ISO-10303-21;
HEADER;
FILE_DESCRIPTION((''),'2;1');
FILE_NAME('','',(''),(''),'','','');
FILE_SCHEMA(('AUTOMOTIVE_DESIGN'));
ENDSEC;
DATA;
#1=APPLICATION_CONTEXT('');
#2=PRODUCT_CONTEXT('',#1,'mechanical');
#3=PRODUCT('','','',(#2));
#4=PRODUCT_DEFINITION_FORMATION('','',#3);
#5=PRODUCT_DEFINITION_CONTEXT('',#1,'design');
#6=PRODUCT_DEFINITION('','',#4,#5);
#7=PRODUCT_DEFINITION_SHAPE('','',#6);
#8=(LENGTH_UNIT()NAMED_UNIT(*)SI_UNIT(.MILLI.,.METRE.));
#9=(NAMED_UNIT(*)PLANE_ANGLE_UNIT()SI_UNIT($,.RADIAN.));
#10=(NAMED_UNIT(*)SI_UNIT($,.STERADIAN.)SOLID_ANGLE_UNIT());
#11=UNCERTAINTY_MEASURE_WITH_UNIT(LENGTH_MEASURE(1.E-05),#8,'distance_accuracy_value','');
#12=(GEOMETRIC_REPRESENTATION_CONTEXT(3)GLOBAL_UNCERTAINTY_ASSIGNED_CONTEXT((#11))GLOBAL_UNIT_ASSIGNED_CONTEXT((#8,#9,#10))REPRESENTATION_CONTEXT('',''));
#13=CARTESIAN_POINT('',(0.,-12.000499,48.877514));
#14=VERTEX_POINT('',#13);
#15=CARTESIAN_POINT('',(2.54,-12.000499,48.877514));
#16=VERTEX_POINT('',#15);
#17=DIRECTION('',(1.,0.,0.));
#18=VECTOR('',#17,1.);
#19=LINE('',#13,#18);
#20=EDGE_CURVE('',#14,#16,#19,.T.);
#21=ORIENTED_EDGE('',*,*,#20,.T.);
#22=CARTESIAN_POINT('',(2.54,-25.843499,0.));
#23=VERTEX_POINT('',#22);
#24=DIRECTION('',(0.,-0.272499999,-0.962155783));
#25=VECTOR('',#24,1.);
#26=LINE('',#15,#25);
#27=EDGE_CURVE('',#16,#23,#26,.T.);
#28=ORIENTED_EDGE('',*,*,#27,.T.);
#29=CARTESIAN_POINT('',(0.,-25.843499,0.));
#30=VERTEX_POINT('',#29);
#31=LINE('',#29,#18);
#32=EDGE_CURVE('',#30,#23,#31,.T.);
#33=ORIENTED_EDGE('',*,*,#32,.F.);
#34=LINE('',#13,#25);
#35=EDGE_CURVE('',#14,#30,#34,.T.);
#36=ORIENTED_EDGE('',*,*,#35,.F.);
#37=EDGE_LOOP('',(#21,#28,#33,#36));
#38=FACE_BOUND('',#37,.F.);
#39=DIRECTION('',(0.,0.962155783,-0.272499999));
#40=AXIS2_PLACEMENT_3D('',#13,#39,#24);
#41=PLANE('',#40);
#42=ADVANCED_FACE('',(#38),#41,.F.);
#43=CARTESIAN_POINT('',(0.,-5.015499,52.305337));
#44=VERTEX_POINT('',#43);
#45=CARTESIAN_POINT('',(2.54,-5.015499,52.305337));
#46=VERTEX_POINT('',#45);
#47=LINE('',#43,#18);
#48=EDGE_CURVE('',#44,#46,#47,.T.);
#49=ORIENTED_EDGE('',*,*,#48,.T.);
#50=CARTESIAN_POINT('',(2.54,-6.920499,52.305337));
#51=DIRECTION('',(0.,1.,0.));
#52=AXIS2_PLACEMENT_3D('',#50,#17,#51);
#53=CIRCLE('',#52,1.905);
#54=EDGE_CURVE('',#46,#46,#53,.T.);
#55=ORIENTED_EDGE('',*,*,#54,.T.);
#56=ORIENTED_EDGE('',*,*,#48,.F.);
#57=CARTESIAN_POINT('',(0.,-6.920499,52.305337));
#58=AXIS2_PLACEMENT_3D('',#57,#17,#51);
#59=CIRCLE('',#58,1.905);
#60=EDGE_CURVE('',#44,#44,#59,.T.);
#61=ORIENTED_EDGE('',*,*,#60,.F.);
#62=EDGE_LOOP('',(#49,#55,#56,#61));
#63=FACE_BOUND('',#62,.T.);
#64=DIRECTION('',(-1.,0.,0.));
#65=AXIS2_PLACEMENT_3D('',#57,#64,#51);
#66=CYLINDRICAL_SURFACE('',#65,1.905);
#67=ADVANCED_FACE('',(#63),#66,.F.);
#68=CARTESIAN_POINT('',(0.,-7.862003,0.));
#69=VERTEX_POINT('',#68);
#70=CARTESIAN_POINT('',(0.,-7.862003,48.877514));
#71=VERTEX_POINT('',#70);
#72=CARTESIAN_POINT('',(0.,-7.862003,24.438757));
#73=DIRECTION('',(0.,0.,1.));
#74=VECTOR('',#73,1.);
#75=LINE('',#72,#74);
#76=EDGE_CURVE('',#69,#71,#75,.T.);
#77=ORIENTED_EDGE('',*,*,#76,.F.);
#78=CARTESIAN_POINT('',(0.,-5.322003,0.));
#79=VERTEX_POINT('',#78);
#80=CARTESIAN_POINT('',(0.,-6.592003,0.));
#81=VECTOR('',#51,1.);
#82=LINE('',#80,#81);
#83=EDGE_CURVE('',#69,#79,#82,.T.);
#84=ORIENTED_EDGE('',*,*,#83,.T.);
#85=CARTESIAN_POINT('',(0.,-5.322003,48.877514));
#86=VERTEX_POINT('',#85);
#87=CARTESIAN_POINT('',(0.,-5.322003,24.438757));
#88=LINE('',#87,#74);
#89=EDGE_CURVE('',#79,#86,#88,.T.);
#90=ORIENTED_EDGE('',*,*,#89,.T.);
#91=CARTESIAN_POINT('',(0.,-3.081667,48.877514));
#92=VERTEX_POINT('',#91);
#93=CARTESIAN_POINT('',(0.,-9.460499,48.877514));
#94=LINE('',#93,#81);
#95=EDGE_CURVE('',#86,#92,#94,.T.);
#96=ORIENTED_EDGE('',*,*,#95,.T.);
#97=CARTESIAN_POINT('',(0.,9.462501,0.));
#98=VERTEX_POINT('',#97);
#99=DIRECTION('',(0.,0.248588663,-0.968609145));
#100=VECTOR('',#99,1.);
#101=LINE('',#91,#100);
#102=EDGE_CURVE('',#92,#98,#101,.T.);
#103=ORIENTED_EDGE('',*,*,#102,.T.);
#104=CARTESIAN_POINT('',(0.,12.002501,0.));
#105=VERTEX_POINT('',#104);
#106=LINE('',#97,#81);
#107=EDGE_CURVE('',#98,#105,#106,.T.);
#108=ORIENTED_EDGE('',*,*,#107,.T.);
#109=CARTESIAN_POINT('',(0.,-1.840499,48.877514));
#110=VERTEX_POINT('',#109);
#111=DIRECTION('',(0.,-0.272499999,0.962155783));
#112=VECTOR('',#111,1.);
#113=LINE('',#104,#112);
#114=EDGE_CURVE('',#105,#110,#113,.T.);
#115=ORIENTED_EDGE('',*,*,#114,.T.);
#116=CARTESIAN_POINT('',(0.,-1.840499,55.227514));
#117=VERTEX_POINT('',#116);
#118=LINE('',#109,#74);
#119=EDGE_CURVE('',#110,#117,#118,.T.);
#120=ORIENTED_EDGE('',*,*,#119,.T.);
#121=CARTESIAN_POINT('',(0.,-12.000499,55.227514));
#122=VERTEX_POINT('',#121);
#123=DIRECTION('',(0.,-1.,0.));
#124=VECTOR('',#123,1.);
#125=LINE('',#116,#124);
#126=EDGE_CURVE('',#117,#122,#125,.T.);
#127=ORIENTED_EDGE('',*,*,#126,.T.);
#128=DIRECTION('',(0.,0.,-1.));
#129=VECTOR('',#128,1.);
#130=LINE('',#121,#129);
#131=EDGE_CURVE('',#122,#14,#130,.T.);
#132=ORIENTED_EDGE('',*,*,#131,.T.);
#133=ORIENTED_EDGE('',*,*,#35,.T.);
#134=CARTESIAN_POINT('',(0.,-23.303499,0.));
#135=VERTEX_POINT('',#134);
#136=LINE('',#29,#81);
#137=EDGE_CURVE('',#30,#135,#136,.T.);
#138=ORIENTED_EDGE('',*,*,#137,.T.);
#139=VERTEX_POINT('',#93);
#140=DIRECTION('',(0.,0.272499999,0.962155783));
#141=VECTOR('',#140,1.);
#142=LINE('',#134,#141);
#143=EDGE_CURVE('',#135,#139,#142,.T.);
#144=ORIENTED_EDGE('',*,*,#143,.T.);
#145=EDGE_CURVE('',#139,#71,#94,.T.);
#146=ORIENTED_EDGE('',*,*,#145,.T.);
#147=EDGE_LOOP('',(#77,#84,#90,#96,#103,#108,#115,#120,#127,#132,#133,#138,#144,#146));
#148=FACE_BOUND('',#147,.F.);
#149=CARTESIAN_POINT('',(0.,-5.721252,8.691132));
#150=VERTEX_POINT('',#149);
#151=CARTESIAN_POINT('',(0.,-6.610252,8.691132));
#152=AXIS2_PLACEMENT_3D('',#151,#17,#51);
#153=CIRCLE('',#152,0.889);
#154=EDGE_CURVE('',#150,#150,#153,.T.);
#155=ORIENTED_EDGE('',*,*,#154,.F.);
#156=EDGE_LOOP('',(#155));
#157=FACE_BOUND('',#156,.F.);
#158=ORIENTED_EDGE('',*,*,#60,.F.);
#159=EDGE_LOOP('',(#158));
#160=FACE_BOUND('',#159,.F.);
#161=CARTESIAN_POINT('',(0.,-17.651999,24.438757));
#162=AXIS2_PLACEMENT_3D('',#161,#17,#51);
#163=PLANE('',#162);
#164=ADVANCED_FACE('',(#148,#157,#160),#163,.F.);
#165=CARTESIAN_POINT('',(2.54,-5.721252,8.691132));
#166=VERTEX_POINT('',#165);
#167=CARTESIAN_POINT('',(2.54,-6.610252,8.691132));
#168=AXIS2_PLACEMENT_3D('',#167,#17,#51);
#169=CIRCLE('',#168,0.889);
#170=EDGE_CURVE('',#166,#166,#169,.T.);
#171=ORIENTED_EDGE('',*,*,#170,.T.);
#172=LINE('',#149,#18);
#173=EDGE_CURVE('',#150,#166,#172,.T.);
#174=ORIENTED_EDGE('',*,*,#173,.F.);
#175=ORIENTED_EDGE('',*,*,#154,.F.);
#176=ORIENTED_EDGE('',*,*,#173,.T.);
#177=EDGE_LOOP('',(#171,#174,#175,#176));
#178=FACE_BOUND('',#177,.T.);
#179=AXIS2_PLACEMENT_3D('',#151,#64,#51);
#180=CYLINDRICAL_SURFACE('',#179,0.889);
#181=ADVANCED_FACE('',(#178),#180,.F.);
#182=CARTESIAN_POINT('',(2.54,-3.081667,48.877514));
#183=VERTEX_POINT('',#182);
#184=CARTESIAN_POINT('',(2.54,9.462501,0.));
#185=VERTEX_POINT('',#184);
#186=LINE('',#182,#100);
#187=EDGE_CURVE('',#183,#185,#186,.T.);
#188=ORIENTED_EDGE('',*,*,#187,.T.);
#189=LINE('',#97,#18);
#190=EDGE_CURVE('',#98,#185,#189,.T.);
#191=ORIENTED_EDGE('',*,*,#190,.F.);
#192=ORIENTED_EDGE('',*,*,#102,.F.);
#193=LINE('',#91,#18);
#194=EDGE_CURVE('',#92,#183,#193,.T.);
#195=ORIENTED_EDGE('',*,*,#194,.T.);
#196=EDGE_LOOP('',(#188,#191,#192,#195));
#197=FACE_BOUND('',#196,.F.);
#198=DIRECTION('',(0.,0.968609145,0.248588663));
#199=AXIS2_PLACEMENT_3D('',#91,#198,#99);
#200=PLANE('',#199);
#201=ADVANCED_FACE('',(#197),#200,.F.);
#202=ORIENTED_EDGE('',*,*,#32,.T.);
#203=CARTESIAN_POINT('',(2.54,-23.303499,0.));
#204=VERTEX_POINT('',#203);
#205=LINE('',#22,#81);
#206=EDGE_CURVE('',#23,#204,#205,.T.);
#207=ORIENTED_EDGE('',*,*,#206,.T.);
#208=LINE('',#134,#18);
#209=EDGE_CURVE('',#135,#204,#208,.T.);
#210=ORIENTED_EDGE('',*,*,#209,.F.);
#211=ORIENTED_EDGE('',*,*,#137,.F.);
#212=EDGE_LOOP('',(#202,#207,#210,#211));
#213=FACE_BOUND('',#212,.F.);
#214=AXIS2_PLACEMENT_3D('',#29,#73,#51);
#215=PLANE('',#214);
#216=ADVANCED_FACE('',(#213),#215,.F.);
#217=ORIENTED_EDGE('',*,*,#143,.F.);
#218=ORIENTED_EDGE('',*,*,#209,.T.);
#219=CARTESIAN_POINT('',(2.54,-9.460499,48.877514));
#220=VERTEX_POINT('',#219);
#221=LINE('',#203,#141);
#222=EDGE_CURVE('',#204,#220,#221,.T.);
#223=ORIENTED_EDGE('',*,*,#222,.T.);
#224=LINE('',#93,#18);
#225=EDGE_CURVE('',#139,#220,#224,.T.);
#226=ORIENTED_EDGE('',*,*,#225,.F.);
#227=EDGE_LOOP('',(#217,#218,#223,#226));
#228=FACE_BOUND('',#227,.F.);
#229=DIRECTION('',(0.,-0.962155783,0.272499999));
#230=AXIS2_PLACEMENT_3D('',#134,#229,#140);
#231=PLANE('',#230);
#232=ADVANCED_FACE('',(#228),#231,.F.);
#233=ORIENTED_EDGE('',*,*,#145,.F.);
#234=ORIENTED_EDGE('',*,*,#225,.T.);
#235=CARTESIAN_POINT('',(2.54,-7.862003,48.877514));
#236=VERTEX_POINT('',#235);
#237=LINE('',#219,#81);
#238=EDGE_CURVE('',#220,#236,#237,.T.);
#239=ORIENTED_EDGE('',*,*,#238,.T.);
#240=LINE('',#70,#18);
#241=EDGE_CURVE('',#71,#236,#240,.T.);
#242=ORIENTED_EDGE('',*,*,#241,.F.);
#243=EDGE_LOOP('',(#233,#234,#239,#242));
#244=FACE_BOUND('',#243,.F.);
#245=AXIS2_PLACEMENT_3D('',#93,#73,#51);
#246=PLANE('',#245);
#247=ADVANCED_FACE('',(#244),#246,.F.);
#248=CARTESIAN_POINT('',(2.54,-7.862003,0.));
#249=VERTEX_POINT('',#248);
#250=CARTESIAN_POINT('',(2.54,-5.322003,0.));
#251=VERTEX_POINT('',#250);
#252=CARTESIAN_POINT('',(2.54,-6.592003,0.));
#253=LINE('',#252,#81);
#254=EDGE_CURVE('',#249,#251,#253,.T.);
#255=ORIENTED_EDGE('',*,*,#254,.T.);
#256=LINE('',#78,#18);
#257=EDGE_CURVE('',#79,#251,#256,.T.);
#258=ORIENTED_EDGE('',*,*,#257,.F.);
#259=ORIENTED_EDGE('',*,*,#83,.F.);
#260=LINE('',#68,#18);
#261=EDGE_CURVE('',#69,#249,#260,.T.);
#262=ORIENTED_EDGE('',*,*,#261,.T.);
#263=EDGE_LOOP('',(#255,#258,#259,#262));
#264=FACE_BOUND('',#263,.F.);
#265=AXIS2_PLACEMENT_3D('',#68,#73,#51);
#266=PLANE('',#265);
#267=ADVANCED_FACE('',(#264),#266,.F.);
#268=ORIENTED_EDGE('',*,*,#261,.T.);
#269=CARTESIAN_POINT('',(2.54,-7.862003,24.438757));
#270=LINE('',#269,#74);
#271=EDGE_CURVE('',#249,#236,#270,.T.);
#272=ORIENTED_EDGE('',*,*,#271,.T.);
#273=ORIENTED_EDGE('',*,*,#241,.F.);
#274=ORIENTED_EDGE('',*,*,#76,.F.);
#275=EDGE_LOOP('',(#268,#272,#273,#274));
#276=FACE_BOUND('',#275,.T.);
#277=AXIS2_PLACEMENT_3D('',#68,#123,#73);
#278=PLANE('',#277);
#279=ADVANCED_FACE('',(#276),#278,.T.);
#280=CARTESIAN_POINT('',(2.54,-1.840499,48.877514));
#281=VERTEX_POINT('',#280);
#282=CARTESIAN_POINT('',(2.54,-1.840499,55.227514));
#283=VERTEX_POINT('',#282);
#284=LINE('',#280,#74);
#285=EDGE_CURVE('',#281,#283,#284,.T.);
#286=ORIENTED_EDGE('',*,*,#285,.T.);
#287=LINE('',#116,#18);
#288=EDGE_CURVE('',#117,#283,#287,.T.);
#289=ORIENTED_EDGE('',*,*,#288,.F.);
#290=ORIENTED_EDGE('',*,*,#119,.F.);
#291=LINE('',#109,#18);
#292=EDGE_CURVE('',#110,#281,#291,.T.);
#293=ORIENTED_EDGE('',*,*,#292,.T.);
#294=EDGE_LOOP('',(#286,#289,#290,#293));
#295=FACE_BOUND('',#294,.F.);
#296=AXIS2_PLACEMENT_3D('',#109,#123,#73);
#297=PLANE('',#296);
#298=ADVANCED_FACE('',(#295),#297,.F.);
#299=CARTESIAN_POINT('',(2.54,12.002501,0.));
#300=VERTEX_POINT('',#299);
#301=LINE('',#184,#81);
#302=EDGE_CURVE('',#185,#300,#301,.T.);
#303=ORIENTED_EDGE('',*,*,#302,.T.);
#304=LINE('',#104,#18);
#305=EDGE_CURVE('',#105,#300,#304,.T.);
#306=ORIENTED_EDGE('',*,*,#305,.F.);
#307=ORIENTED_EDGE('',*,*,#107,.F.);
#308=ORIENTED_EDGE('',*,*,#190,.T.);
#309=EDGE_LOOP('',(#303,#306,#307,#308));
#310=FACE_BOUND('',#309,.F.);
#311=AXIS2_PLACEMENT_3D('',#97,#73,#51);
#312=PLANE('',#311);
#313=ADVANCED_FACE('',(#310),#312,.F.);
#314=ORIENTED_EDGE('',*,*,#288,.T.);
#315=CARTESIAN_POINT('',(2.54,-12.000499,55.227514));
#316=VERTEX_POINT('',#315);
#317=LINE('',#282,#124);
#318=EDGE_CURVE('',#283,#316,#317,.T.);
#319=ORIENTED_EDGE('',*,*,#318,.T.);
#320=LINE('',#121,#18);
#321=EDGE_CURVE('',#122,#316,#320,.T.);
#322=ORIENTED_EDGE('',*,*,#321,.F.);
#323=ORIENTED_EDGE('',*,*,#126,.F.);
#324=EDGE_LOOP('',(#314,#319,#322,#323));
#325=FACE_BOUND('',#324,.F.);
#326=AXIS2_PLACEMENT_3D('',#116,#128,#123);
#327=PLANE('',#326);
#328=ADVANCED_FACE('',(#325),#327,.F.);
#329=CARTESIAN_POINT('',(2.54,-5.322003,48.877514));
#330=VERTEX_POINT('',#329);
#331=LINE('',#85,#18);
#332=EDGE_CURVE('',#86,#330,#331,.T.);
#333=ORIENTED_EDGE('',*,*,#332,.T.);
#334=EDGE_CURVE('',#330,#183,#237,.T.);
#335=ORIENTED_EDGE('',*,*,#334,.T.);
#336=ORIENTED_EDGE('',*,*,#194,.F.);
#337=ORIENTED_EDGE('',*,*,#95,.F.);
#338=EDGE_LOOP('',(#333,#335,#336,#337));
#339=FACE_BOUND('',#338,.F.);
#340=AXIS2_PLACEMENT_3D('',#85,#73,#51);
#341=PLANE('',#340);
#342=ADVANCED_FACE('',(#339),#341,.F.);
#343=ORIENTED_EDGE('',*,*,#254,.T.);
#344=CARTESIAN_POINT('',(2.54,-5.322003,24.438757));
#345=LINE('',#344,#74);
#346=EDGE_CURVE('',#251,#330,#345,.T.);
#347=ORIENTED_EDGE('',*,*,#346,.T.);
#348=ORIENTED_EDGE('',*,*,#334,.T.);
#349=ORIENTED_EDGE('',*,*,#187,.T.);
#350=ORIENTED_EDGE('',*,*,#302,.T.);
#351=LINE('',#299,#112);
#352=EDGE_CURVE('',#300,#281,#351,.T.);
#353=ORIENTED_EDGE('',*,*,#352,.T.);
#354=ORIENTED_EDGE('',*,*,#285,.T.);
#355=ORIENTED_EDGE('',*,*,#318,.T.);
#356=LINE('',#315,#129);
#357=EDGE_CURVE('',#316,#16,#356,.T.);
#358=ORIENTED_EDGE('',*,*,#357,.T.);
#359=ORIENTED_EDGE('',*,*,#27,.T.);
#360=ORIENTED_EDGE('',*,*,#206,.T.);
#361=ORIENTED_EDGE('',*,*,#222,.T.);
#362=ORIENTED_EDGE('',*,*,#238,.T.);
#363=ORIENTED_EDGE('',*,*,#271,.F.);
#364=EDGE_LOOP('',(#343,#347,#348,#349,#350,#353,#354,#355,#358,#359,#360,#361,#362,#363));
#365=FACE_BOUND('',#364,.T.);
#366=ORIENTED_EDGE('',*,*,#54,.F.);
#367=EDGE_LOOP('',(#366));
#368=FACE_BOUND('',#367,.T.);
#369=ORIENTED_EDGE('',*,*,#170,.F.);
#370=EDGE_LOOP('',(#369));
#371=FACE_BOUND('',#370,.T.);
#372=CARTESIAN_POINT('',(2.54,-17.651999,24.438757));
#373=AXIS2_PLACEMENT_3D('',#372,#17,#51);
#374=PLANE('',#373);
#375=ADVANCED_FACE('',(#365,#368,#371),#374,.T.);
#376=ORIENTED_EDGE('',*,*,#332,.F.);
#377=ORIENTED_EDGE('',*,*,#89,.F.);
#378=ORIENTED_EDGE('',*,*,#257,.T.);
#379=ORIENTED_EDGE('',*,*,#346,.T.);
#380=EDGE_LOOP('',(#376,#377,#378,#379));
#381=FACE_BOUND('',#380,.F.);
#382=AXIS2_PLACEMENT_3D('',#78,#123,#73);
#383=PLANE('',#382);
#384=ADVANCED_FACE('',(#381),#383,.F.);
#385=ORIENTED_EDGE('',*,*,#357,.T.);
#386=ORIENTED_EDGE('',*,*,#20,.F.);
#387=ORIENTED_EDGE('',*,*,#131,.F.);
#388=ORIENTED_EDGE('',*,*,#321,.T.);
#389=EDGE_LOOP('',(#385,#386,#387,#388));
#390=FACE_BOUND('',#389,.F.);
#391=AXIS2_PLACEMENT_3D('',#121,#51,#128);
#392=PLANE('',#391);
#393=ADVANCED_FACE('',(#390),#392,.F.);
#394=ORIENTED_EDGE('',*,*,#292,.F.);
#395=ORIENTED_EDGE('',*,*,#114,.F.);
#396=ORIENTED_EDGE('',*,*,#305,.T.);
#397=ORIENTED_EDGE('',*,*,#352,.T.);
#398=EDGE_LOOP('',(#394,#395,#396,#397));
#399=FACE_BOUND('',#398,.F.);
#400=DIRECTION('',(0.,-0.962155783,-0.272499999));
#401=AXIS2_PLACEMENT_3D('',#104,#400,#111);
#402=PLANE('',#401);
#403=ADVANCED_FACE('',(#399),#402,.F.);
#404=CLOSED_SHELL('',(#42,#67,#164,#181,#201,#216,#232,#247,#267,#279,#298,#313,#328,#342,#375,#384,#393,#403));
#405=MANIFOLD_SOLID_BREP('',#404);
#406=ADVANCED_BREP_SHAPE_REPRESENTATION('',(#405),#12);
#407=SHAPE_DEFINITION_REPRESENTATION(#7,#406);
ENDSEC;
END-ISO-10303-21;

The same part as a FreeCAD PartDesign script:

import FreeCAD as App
import Part
import Sketcher
from FreeCAD import Vector
Q = App.Units.Quantity


def add_polygon(sketch, points):
    """Adds a closed chain of lines whose ends are joined by coincident constraints."""
    first, n = sketch.GeometryCount, len(points)
    for a, b in zip(points, points[1:] + points[:1]):
        sketch.addGeometry(Part.LineSegment(App.Vector(*a, 0), App.Vector(*b, 0)), False)
    for i in range(n):
        sketch.addConstraint(Sketcher.Constraint("Coincident", first + i, 2, first + (i + 1) % n, 1))

doc = App.newDocument("Part")
body = doc.addObject("PartDesign::Body", "Body")

# Sketch on YZ plane
sketch1 = doc.addObject("Sketcher::SketchObject", "Sketch")
body.addObject(sketch1)
sketch1.AttachmentSupport = (doc.YZ_Plane, [""])
sketch1.MapMode = "FlatFace"
add_polygon(sketch1, [(-12.000499, 48.877514), (-25.843499, 0), (-23.303499, 0), (-9.460499, 48.877514), (-7.862003, 48.877514), (-7.862003, 0), (-5.322003, 0), (-5.322003, 48.877514), (-3.081667, 48.877514), (9.462501, 0), (12.002501, 0), (-1.840499, 48.877514), (-1.840499, 55.227514), (-12.000499, 55.227514)])  # lines 0-13
sketch1.addGeometry(Part.Circle(Vector(-6.610252, 8.691132, 0), Vector(0, 0, 1), 0.889), False)  # 14
sketch1.addGeometry(Part.Circle(Vector(-6.920499, 52.305337, 0), Vector(0, 0, 1), 1.905), False)  # 15
sketch1.addConstraint(Sketcher.Constraint("Horizontal", 1))
sketch1.addConstraint(Sketcher.Constraint("Horizontal", 3))
sketch1.addConstraint(Sketcher.Constraint("Vertical", 4))
sketch1.addConstraint(Sketcher.Constraint("Horizontal", 5))
sketch1.addConstraint(Sketcher.Constraint("Vertical", 6))
sketch1.addConstraint(Sketcher.Constraint("Horizontal", 7))
sketch1.addConstraint(Sketcher.Constraint("Horizontal", 9))
sketch1.addConstraint(Sketcher.Constraint("Vertical", 11))
sketch1.addConstraint(Sketcher.Constraint("Horizontal", 12))
sketch1.addConstraint(Sketcher.Constraint("Vertical", 13))
sketch1.addConstraint(Sketcher.Constraint("PointOnObject", 0, 2, -1))
sketch1.addConstraint(Sketcher.Constraint("PointOnObject", 4, 2, -1))
sketch1.addConstraint(Sketcher.Constraint("PointOnObject", 8, 2, -1))
sketch1.addConstraint(Sketcher.Constraint("Parallel", 0, 2))
sketch1.addConstraint(Sketcher.Constraint("Horizontal", 3, 2, 6, 2))
sketch1.addConstraint(Sketcher.Constraint("Horizontal", 7, 2, 10, 2))
sketch1.addConstraint(Sketcher.Constraint("Horizontal", 10, 2, 13, 2))
sketch1.addConstraint(Sketcher.Constraint("Equal", 1, 5))
sketch1.addConstraint(Sketcher.Constraint("Equal", 5, 9))
sketch1.addConstraint(Sketcher.Constraint("Equal", 2, 10))
sketch1.addConstraint(Sketcher.Constraint("Diameter", 14, Q("0.07 in")))
sketch1.addConstraint(Sketcher.Constraint("Diameter", 15, Q("0.15 in")))
sketch1.addConstraint(Sketcher.Constraint("Distance", 0, Q("2 in")))
sketch1.addConstraint(Sketcher.Constraint("DistanceX", 1, 1, 1, 2, Q("0.1 in")))
sketch1.addConstraint(Sketcher.Constraint("DistanceX", 12, 2, 12, 1, Q("0.4 in")))
sketch1.addConstraint(Sketcher.Constraint("DistanceY", 11, 1, 11, 2, Q("0.25 in")))
sketch1.addConstraint(Sketcher.Constraint("DistanceX", 2, 2, 15, 3, Q("0.1 in")))
sketch1.addConstraint(Sketcher.Constraint("DistanceX", 1, 2, 8, 2, Q("1.29 in")))
sketch1.addConstraint(Sketcher.Constraint("DistanceX", 15, 3, -1, 1, 6.920499))
sketch1.addConstraint(Sketcher.Constraint("DistanceX", 3, 1, 3, 2, 1.598496))
sketch1.addConstraint(Sketcher.Constraint("DistanceX", 7, 1, 7, 2, 2.240336))
sketch1.addConstraint(Sketcher.Constraint("DistanceY", 14, 3, 2, 2, 40.186382))
sketch1.addConstraint(Sketcher.Constraint("DistanceX", 3, 2, 14, 3, 1.251751))
sketch1.addConstraint(Sketcher.Constraint("DistanceY", -1, 1, 15, 3, 52.305337))
pad1 = doc.addObject("PartDesign::Pad", "Pad")
body.addObject(pad1)
pad1.Profile = sketch1
pad1.Length = Q("0.1 in")

doc.recompute()
